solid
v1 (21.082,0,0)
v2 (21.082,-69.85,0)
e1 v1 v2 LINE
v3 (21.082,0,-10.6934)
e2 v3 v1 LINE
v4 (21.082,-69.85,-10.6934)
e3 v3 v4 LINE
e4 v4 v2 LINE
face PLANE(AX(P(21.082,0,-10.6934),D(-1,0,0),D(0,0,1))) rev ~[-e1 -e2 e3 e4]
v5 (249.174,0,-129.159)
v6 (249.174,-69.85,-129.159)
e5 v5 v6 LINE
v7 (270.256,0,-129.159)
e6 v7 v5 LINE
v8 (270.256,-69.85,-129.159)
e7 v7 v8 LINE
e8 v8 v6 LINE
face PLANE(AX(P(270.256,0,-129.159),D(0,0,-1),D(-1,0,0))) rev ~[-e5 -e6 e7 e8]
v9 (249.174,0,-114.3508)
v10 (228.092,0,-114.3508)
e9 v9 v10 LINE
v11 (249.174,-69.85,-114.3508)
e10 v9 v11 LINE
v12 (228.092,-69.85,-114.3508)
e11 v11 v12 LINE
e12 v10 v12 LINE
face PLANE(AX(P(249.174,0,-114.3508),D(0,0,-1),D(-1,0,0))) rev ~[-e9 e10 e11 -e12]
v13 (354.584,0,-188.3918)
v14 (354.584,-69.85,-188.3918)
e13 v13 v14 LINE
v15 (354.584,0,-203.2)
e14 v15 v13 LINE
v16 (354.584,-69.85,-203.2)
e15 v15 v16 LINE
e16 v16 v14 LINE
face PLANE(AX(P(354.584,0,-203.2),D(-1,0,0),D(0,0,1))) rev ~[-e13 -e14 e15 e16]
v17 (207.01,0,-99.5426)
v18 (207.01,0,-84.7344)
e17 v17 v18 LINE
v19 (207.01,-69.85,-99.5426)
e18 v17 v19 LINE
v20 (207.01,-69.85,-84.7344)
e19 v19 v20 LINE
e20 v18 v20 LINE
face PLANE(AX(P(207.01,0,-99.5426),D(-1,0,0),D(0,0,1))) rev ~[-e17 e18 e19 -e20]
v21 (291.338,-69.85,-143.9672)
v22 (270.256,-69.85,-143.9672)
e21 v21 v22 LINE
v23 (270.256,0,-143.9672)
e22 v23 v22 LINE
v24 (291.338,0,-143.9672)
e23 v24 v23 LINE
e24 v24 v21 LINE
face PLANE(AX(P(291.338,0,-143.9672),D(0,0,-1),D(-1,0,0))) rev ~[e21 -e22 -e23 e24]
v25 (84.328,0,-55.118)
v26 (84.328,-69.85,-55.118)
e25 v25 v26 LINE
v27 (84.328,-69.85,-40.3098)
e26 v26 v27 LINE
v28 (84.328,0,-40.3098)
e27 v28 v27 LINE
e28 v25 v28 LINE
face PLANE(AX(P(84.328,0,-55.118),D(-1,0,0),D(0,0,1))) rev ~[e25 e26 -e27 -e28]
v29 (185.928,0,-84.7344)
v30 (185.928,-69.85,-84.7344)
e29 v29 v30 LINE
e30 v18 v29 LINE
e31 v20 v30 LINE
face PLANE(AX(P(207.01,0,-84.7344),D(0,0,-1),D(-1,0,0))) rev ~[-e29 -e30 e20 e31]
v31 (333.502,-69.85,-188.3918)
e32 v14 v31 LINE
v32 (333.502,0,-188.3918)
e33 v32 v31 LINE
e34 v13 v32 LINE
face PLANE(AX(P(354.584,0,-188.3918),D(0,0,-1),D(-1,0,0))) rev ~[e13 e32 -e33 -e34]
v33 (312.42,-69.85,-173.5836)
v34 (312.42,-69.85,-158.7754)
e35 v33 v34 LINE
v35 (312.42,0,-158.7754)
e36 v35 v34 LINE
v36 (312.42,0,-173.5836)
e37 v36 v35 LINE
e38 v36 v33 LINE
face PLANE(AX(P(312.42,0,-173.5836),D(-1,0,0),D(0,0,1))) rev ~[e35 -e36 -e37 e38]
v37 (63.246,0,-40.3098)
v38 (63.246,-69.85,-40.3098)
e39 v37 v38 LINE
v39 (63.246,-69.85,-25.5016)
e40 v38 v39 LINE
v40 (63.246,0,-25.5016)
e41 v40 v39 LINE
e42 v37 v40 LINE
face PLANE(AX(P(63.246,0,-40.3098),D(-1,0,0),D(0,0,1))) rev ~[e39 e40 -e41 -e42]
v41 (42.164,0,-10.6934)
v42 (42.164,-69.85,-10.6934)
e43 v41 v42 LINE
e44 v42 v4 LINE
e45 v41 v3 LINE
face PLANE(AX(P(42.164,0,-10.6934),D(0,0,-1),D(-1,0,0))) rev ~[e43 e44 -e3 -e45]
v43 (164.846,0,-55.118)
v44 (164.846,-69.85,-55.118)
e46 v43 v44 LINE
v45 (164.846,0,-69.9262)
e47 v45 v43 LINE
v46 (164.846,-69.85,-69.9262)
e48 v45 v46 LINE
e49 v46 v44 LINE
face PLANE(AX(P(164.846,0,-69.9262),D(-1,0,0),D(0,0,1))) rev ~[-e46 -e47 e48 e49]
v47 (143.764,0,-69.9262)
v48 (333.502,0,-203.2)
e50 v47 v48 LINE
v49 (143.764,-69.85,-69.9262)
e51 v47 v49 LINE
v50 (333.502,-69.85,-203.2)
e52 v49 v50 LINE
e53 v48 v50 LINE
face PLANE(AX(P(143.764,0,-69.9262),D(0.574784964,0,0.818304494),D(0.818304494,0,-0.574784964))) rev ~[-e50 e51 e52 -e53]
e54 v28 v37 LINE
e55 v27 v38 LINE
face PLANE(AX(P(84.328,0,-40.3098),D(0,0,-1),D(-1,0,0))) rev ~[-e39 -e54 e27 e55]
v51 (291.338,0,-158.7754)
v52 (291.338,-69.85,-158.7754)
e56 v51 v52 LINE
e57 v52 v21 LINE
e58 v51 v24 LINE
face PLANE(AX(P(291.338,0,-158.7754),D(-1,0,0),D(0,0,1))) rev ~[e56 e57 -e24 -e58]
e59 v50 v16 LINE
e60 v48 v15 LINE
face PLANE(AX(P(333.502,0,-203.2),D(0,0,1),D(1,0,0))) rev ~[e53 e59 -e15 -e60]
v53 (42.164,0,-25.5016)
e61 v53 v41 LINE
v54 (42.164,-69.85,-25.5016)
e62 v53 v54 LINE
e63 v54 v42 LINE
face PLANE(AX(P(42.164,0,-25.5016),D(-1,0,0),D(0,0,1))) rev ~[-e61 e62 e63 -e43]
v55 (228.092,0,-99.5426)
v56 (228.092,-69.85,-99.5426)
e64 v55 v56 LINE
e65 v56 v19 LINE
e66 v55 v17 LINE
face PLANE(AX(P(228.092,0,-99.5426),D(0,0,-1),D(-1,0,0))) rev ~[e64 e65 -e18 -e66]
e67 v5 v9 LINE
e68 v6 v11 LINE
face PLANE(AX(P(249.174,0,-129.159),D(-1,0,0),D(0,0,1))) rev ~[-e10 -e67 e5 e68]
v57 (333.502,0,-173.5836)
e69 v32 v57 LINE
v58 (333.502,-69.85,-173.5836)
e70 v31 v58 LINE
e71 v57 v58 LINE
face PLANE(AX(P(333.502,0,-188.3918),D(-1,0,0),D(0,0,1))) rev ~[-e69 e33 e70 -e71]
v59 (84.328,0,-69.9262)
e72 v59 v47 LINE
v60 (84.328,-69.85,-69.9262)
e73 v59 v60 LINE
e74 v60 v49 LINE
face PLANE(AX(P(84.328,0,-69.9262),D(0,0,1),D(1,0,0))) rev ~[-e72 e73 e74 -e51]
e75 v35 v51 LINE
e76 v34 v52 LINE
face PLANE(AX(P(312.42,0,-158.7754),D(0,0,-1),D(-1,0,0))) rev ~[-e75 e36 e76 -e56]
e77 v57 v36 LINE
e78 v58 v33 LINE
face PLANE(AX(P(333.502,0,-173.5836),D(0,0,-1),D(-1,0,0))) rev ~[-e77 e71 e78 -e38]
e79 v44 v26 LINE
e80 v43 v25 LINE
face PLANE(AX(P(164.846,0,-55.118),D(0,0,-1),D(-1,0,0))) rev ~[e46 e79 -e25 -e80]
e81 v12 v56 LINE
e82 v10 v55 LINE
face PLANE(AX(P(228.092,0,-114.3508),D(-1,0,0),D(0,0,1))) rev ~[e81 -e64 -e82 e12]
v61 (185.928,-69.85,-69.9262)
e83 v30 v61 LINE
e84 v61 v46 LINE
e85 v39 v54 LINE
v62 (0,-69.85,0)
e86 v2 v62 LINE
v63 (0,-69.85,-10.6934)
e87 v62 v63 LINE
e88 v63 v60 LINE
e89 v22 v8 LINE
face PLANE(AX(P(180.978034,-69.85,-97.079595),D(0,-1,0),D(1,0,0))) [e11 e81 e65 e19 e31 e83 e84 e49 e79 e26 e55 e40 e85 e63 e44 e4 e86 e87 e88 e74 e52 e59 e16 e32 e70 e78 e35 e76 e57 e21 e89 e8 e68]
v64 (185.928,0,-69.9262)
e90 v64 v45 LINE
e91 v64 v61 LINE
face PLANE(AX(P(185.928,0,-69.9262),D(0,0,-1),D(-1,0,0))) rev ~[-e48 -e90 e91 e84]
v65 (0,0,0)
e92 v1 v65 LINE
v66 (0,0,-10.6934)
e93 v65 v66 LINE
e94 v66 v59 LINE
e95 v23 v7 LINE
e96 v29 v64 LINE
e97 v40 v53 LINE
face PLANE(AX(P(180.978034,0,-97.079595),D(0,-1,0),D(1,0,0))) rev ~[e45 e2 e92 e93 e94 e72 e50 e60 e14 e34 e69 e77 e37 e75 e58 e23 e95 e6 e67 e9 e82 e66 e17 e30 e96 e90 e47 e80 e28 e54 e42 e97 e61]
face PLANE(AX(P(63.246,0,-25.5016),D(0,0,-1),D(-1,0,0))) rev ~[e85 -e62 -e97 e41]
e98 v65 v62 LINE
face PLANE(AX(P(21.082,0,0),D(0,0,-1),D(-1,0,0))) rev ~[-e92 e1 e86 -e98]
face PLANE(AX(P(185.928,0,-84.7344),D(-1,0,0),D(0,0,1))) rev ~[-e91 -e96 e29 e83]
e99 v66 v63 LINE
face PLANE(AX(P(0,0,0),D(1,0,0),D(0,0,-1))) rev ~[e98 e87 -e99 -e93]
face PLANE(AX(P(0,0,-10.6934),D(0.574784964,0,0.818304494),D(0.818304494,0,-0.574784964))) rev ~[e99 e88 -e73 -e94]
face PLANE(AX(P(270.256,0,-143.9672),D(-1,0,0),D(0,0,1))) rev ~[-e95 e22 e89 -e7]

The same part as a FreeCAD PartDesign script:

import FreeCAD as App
import Part
import Sketcher

V = App.Vector
Q = App.Units.Quantity


def add_polygon(sketch, points):
    """Adds a closed chain of lines whose ends are joined by coincident constraints."""
    first, n = sketch.GeometryCount, len(points)
    for a, b in zip(points, points[1:] + points[:1]):
        sketch.addGeometry(Part.LineSegment(App.Vector(*a, 0), App.Vector(*b, 0)), False)
    for i in range(n):
        sketch.addConstraint(Sketcher.Constraint("Coincident", first + i, 2, first + (i + 1) % n, 1))

doc = App.newDocument("Part")
body = doc.addObject("PartDesign::Body", "Body")

# Sketch on XZ plane
sketch1 = body.newObject("Sketcher::SketchObject", "Sketch")
sketch1.AttachmentSupport = (doc.getObject("XZ_Plane"), [""])
sketch1.MapMode = "FlatFace"
add_polygon(sketch1, [(21.082, 0), (0, 0), (0, -10.6934), (84.328, -69.9262), (143.764, -69.9262), (333.502, -203.2), (354.584, -203.2), (354.584, -188.3918), (333.502, -188.3918), (333.502, -173.5836), (312.42, -173.5836), (312.42, -158.7754), (291.338, -158.7754), (291.338, -143.9672), (270.256, -143.9672), (270.256, -129.159), (249.174, -129.159), (249.174, -114.3508), (228.092, -114.3508), (228.092, -99.5426), (207.01, -99.5426), (207.01, -84.7344), (185.928, -84.7344), (185.928, -69.9262), (164.846, -69.9262), (164.846, -55.118), (84.328, -55.118), (84.328, -40.3098), (63.246, -40.3098), (63.246, -25.5016), (42.164, -25.5016), (42.164, -10.6934), (21.082, -10.6934)])  # lines 0-32
sketch1.addConstraint(Sketcher.Constraint("Horizontal", 0))
sketch1.addConstraint(Sketcher.Constraint("Vertical", 1))
sketch1.addConstraint(Sketcher.Constraint("Horizontal", 3))
sketch1.addConstraint(Sketcher.Constraint("Horizontal", 5))
sketch1.addConstraint(Sketcher.Constraint("Vertical", 6))
sketch1.addConstraint(Sketcher.Constraint("Horizontal", 7))
sketch1.addConstraint(Sketcher.Constraint("Vertical", 8))
sketch1.addConstraint(Sketcher.Constraint("Horizontal", 9))
sketch1.addConstraint(Sketcher.Constraint("Vertical", 10))
sketch1.addConstraint(Sketcher.Constraint("Horizontal", 11))
sketch1.addConstraint(Sketcher.Constraint("Vertical", 12))
sketch1.addConstraint(Sketcher.Constraint("Horizontal", 13))
sketch1.addConstraint(Sketcher.Constraint("Vertical", 14))
sketch1.addConstraint(Sketcher.Constraint("Horizontal", 15))
sketch1.addConstraint(Sketcher.Constraint("Vertical", 16))
sketch1.addConstraint(Sketcher.Constraint("Horizontal", 17))
sketch1.addConstraint(Sketcher.Constraint("Vertical", 18))
sketch1.addConstraint(Sketcher.Constraint("Horizontal", 19))
sketch1.addConstraint(Sketcher.Constraint("Vertical", 20))
sketch1.addConstraint(Sketcher.Constraint("Horizontal", 21))
sketch1.addConstraint(Sketcher.Constraint("Vertical", 22))
sketch1.addConstraint(Sketcher.Constraint("Horizontal", 23))
sketch1.addConstraint(Sketcher.Constraint("Vertical", 24))
sketch1.addConstraint(Sketcher.Constraint("Horizontal", 25))
sketch1.addConstraint(Sketcher.Constraint("Vertical", 26))
sketch1.addConstraint(Sketcher.Constraint("Horizontal", 27))
sketch1.addConstraint(Sketcher.Constraint("Vertical", 28))
sketch1.addConstraint(Sketcher.Constraint("Horizontal", 29))
sketch1.addConstraint(Sketcher.Constraint("Vertical", 30))
sketch1.addConstraint(Sketcher.Constraint("Horizontal", 31))
sketch1.addConstraint(Sketcher.Constraint("Vertical", 32))
sketch1.addConstraint(Sketcher.Constraint("Coincident", 0, 2, -1, 1))
sketch1.addConstraint(Sketcher.Constraint("Parallel", 2, 4))
sketch1.addConstraint(Sketcher.Constraint("Horizontal", 3, 2, 22, 2))
sketch1.addConstraint(Sketcher.Constraint("Horizontal", 1, 2, 30, 2))
sketch1.addConstraint(Sketcher.Constraint("Vertical", 4, 2, 7, 2))
sketch1.addConstraint(Sketcher.Constraint("Vertical", 2, 2, 25, 2))
sketch1.addConstraint(Sketcher.Constraint("Equal", 0, 5))
sketch1.addConstraint(Sketcher.Constraint("Equal", 7, 9))
sketch1.addConstraint(Sketcher.Constraint("Equal", 9, 11))
sketch1.addConstraint(Sketcher.Constraint("Equal", 11, 13))
sketch1.addConstraint(Sketcher.Constraint("Equal", 13, 15))
sketch1.addConstraint(Sketcher.Constraint("Equal", 15, 17))
sketch1.addConstraint(Sketcher.Constraint("Equal", 17, 19))
sketch1.addConstraint(Sketcher.Constraint("Equal", 19, 21))
sketch1.addConstraint(Sketcher.Constraint("Equal", 21, 23))
sketch1.addConstraint(Sketcher.Constraint("Equal", 23, 27))
sketch1.addConstraint(Sketcher.Constraint("Equal", 27, 29))
sketch1.addConstraint(Sketcher.Constraint("Equal", 29, 31))
sketch1.addConstraint(Sketcher.Constraint("Equal", 6, 8))
sketch1.addConstraint(Sketcher.Constraint("Equal", 8, 10))
sketch1.addConstraint(Sketcher.Constraint("Equal", 10, 12))
sketch1.addConstraint(Sketcher.Constraint("Equal", 12, 14))
sketch1.addConstraint(Sketcher.Constraint("Equal", 14, 16))
sketch1.addConstraint(Sketcher.Constraint("Equal", 16, 18))
sketch1.addConstraint(Sketcher.Constraint("Equal", 18, 20))
sketch1.addConstraint(Sketcher.Constraint("Equal", 20, 22))
sketch1.addConstraint(Sketcher.Constraint("Equal", 22, 24))
sketch1.addConstraint(Sketcher.Constraint("Equal", 24, 26))
sketch1.addConstraint(Sketcher.Constraint("Equal", 26, 28))
sketch1.addConstraint(Sketcher.Constraint("Equal", 28, 30))
sketch1.addConstraint(Sketcher.Constraint("DistanceY", 4, 2, -1, 1, Q("8 in")))
sketch1.addConstraint(Sketcher.Constraint("DistanceX", 0, 2, 0, 1, Q("0.83 in")))
sketch1.addConstraint(Sketcher.Constraint("DistanceX", 3, 1, 3, 2, Q("2.34 in")))
sketch1.addConstraint(Sketcher.Constraint("DistanceY", 1, 2, 1, 1, Q("0.421 in")))
pad1 = body.newObject("PartDesign::Pad", "Pad")
pad1.Profile = sketch1
pad1.Length = Q("2.75 in")

doc.recompute()
